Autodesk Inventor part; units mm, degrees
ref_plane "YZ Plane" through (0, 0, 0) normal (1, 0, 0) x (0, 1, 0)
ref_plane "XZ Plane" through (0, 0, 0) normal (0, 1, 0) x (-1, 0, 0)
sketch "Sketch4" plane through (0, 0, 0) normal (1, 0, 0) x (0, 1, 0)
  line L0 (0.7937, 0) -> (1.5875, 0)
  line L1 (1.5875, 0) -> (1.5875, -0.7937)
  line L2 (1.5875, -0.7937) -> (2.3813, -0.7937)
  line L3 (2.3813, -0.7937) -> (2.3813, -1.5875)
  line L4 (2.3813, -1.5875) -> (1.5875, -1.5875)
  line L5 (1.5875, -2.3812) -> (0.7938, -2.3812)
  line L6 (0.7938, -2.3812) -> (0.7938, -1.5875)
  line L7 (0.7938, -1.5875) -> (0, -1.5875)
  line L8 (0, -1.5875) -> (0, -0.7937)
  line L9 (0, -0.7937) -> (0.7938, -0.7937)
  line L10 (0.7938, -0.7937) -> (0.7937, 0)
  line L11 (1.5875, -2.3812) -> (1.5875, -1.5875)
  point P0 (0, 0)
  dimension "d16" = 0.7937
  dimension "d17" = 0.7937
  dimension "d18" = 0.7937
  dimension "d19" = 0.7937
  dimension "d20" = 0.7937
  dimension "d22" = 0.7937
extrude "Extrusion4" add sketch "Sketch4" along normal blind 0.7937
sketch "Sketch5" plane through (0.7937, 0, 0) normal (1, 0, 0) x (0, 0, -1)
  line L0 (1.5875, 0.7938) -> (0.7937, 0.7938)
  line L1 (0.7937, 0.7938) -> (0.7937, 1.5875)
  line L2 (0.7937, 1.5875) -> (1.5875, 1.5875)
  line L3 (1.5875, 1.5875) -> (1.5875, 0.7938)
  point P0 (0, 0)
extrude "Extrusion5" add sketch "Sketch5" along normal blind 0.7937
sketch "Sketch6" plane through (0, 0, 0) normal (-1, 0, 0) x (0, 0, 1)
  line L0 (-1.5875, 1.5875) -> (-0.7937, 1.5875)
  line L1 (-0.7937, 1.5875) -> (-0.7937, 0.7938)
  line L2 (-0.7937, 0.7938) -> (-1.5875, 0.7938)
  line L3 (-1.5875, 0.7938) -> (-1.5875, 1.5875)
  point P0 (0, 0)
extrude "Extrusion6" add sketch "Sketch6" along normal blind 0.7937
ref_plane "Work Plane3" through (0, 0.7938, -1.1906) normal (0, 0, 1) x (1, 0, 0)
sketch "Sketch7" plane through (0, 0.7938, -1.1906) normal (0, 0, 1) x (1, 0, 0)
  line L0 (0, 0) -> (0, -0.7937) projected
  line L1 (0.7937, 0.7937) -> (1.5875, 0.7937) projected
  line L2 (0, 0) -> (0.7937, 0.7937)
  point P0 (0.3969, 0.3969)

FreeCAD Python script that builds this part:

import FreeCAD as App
import Part
import Sketcher

V = App.Vector
Q = App.Units.Quantity

doc = App.newDocument("Part")
body = doc.addObject("PartDesign::Body", "Body")

# Sketch on YZ plane
sketch1 = body.newObject("Sketcher::SketchObject", "Sketch")
sketch1.AttachmentSupport = (doc.getObject("YZ_Plane"), [""])
sketch1.MapMode = "FlatFace"
sketch1.addGeometry([
    Part.LineSegment(V(1.5875, 0, 0), V(0.7937, 0, 0)),  # 0
    Part.LineSegment(V(0.7937, 0, 0), V(0.7938, -0.7937, 0)),  # 1
    Part.LineSegment(V(0.7938, -0.7937, 0), V(0, -0.7937, 0)),  # 2
    Part.LineSegment(V(0, -0.7937, 0), V(0, -1.5875, 0)),  # 3
    Part.LineSegment(V(0, -1.5875, 0), V(0.7938, -1.5875, 0)),  # 4
    Part.LineSegment(V(0.7938, -1.5875, 0), V(0.7938, -2.3812, 0)),  # 5
    Part.LineSegment(V(0.7938, -2.3812, 0), V(1.5875, -2.3812, 0)),  # 6
    Part.LineSegment(V(1.5875, -2.3812, 0), V(1.5875, -1.5875, 0)),  # 7
    Part.LineSegment(V(1.5875, -1.5875, 0), V(2.3813, -1.5875, 0)),  # 8
    Part.LineSegment(V(2.3813, -1.5875, 0), V(2.3813, -0.7937, 0)),  # 9
    Part.LineSegment(V(2.3813, -0.7937, 0), V(1.5875, -0.7937, 0)),  # 10
    Part.LineSegment(V(1.5875, -0.7937, 0), V(1.5875, 0, 0)),  # 11
], False)
sketch1.addConstraint([
    Sketcher.Constraint("Coincident", 0, 2, 1, 1),
    Sketcher.Constraint("Coincident", 1, 2, 2, 1),
    Sketcher.Constraint("Coincident", 2, 2, 3, 1),
    Sketcher.Constraint("Coincident", 3, 2, 4, 1),
    Sketcher.Constraint("Coincident", 4, 2, 5, 1),
    Sketcher.Constraint("Coincident", 5, 2, 6, 1),
    Sketcher.Constraint("Coincident", 6, 2, 7, 1),
    Sketcher.Constraint("Coincident", 7, 2, 8, 1),
    Sketcher.Constraint("Coincident", 8, 2, 9, 1),
    Sketcher.Constraint("Coincident", 9, 2, 10, 1),
    Sketcher.Constraint("Coincident", 10, 2, 11, 1),
    Sketcher.Constraint("Coincident", 11, 2, 0, 1),
    Sketcher.Constraint("Horizontal", 0),
    Sketcher.Constraint("Vertical", 1),
    Sketcher.Constraint("Horizontal", 2),
    Sketcher.Constraint("Vertical", 3),
    Sketcher.Constraint("Horizontal", 4),
    Sketcher.Constraint("Vertical", 5),
    Sketcher.Constraint("Horizontal", 6),
    Sketcher.Constraint("Vertical", 7),
    Sketcher.Constraint("Horizontal", 8),
    Sketcher.Constraint("Vertical", 9),
    Sketcher.Constraint("Horizontal", 10),
    Sketcher.Constraint("Vertical", 11),
    Sketcher.Constraint("PointOnObject", 0, 2, -1),
    Sketcher.Constraint("PointOnObject", 2, 2, -2),
    Sketcher.Constraint("Horizontal", 4, 2, 7, 2),
    Sketcher.Constraint("Horizontal", 2, 2, 9, 2),
    Sketcher.Constraint("Vertical", 1, 2, 4, 2),
    Sketcher.Constraint("Vertical", 7, 2, 10, 2),
    Sketcher.Constraint("Equal", 0, 2),
    Sketcher.Constraint("Equal", 6, 8),
    Sketcher.Constraint("Equal", 10, 1),
    Sketcher.Constraint("Equal", 1, 3),
    Sketcher.Constraint("Equal", 3, 5),
    Sketcher.Constraint("DistanceX", 0, 2, 0, 1, Q("0.031252 in")),
])
pad1 = body.newObject("PartDesign::Pad", "Pad")
pad1.Profile = sketch1
pad1.Length = Q("0.031248 in")

# Sketch on YZ plane
sketch2 = body.newObject("Sketcher::SketchObject", "Sketch001")
sketch2.AttachmentSupport = (doc.getObject("YZ_Plane"), [""])
sketch2.MapMode = "FlatFace"
sketch2.AttachmentOffset = App.Placement(V(0, 0, 0.031248 * 25.4), App.Rotation())
sketch2.addGeometry([
    Part.LineSegment(V(0.7938, -0.7937, 0), V(0.7938, -1.5875, 0)),
    Part.LineSegment(V(0.7938, -1.5875, 0), V(1.5875, -1.5875, 0)),
    Part.LineSegment(V(1.5875, -1.5875, 0), V(1.5875, -0.7937, 0)),
    Part.LineSegment(V(1.5875, -0.7937, 0), V(0.7938, -0.7937, 0)),
], False)
sketch2.addConstraint([
    Sketcher.Constraint("Coincident", 0, 2, 1, 1),
    Sketcher.Constraint("Coincident", 1, 2, 2, 1),
    Sketcher.Constraint("Coincident", 2, 2, 3, 1),
    Sketcher.Constraint("Coincident", 3, 2, 0, 1),
    Sketcher.Constraint("Vertical", 0),
    Sketcher.Constraint("Horizontal", 1),
    Sketcher.Constraint("Vertical", 2),
    Sketcher.Constraint("Horizontal", 3),
    Sketcher.Constraint("Equal", 3, 0),
    Sketcher.Constraint("DistanceX", 1, 1, 1, 2, Q("0.031248 in")),
    Sketcher.Constraint("DistanceX", -1, 1, 0, 2, Q("0.031252 in")),
    Sketcher.Constraint("DistanceY", 0, 2, -1, 1, Q("0.0625 in")),
])
pad2 = body.newObject("PartDesign::Pad", "Pad001")
pad2.Profile = sketch2
pad2.Length = Q("0.031248 in")

# Sketch on YZ plane
sketch3 = body.newObject("Sketcher::SketchObject", "Sketch002")
sketch3.AttachmentSupport = (doc.getObject("YZ_Plane"), [""])
sketch3.MapMode = "FlatFace"
sketch3.addGeometry([
    Part.LineSegment(V(1.5875, -0.7937, 0), V(1.5875, -1.5875, 0)),
    Part.LineSegment(V(1.5875, -1.5875, 0), V(0.7938, -1.5875, 0)),
    Part.LineSegment(V(0.7938, -1.5875, 0), V(0.7938, -0.7937, 0)),
    Part.LineSegment(V(0.7938, -0.7937, 0), V(1.5875, -0.7937, 0)),
], False)
sketch3.addConstraint([
    Sketcher.Constraint("Coincident", 0, 2, 1, 1),
    Sketcher.Constraint("Coincident", 1, 2, 2, 1),
    Sketcher.Constraint("Coincident", 2, 2, 3, 1),
    Sketcher.Constraint("Coincident", 3, 2, 0, 1),
    Sketcher.Constraint("Vertical", 0),
    Sketcher.Constraint("Horizontal", 1),
    Sketcher.Constraint("Vertical", 2),
    Sketcher.Constraint("Horizontal", 3),
    Sketcher.Constraint("Equal", 3, 0),
    Sketcher.Constraint("DistanceX", 1, 2, 1, 1, Q("0.031248 in")),
    Sketcher.Constraint("DistanceX", -1, 1, 0, 2, Q("0.0625 in")),
    Sketcher.Constraint("DistanceY", 0, 2, -1, 1, Q("0.0625 in")),
])
pad3 = body.newObject("PartDesign::Pad", "Pad002")
pad3.Profile = sketch3
pad3.Length = Q("0.031248 in")
pad3.Reversed = True

doc.recompute()
